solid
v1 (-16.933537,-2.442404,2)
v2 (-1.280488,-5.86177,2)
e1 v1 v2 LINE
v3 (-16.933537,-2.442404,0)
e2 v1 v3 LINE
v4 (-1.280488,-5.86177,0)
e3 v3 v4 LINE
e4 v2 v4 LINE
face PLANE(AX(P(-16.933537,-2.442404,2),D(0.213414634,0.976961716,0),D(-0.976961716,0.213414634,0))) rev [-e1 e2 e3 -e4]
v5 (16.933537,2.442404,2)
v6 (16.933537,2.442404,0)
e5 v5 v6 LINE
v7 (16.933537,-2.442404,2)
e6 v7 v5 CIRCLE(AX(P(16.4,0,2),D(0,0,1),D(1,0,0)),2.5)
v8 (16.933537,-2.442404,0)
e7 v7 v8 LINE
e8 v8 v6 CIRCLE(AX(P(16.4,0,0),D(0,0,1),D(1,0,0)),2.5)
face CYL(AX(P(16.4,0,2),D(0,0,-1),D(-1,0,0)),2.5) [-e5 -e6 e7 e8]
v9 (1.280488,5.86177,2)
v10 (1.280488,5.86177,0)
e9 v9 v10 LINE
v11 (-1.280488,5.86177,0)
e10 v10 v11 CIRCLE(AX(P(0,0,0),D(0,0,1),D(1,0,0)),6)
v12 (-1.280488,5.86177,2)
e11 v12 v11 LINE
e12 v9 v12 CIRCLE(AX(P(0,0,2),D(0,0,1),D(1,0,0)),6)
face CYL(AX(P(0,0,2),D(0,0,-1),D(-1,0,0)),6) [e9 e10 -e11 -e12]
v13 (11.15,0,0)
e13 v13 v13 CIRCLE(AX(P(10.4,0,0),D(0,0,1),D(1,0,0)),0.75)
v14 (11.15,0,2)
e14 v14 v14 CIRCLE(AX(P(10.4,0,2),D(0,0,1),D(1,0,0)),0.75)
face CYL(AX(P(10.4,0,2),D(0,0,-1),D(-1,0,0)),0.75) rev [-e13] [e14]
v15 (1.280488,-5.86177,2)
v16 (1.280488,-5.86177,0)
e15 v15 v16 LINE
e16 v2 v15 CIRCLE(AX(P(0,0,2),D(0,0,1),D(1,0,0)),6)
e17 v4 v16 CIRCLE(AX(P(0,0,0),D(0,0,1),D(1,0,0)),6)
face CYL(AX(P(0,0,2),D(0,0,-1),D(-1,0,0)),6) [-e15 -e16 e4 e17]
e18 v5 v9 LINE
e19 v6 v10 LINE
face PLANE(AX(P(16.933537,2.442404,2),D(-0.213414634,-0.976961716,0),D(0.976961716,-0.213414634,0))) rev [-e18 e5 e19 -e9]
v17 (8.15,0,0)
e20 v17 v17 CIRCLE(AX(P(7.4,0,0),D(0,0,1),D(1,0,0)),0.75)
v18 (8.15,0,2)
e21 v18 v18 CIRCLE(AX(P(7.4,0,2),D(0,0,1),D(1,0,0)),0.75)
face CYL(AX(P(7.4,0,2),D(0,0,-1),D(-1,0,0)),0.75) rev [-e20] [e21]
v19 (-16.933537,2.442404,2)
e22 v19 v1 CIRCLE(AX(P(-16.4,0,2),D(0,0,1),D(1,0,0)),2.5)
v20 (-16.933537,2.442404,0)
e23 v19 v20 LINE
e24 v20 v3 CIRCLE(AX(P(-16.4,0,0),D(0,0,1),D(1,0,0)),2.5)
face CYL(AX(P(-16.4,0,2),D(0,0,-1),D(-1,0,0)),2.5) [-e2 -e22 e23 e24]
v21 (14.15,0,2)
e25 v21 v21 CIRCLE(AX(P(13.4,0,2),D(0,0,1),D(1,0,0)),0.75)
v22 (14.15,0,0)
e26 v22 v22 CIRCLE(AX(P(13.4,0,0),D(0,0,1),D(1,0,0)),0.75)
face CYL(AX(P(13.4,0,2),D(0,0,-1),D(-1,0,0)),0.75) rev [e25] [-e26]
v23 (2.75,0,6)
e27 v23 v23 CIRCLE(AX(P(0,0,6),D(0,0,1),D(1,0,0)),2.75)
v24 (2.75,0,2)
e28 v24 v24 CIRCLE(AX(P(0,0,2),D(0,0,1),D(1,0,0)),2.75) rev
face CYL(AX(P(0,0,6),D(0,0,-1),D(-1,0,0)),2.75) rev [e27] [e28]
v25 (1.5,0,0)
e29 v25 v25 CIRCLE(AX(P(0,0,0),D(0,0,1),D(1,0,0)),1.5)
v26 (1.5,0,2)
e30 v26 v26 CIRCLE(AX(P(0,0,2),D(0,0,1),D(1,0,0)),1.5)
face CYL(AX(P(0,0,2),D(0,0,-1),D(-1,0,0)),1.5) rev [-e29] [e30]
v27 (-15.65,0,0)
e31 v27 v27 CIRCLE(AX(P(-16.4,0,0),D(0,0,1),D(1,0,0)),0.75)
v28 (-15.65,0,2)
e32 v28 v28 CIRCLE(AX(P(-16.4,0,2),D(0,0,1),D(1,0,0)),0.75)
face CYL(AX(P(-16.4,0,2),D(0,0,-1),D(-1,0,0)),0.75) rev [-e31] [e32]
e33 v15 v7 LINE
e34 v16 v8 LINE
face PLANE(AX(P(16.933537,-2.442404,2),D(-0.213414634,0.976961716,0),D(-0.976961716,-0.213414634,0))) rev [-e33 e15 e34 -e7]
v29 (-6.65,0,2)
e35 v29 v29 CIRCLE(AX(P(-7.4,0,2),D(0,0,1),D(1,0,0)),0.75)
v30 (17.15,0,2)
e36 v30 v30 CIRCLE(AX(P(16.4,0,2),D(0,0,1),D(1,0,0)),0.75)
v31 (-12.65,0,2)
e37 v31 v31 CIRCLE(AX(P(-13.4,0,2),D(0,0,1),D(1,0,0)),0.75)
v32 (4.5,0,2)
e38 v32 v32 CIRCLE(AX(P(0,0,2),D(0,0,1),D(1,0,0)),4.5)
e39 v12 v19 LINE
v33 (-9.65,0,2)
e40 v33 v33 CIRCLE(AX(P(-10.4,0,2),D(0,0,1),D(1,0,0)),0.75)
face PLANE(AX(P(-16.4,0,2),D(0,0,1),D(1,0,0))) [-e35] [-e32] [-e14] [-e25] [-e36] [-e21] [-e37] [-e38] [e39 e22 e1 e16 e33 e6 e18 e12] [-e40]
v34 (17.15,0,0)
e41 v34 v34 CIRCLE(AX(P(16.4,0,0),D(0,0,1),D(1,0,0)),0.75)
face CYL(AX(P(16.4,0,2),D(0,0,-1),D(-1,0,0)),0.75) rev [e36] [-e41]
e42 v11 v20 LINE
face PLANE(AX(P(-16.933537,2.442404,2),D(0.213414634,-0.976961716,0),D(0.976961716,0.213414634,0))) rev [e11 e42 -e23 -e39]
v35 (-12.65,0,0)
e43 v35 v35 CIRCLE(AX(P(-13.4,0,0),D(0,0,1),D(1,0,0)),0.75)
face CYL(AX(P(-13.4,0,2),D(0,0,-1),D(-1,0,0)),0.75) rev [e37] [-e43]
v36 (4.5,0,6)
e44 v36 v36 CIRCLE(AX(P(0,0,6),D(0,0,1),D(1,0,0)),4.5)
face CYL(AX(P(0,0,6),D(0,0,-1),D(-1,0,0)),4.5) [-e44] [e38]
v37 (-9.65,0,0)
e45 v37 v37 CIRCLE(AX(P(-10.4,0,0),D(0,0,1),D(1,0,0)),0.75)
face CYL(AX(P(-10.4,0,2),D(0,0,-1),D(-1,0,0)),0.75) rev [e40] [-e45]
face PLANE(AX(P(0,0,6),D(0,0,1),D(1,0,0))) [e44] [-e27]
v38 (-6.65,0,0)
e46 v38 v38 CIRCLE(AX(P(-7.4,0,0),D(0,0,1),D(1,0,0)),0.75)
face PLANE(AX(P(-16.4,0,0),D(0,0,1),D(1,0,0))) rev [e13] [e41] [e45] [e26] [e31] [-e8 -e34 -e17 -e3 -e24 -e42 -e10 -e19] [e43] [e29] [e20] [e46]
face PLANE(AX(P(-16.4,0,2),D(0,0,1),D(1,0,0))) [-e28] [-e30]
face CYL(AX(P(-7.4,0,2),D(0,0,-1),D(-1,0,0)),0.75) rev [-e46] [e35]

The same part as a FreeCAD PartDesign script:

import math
import FreeCAD as App
import Part
import Sketcher
Q = App.Units.Quantity

doc = App.newDocument("Part")
body = doc.addObject("PartDesign::Body", "Body")

# Sketch on XY plane
sketch1 = body.newObject("Sketcher::SketchObject", "Sketch")
sketch1.AttachmentSupport = (doc.getObject("XY_Plane"), [""])
sketch1.MapMode = "FlatFace"
sketch1.addGeometry([
    Part.LineSegment(App.Vector(-1.3, 5.9, 0), App.Vector(-16.9, 2.4, 0)),  # 0
    Part.ArcOfCircle(Part.Circle(App.Vector(-16.4, 0, 0), App.Vector(0, 0, 1), 2.5), math.radians(102), math.radians(258)),  # 1
    Part.LineSegment(App.Vector(-16.9, -2.4, 0), App.Vector(-1.3, -5.9, 0)),  # 2
    Part.ArcOfCircle(Part.Circle(App.Vector(0, 0, 0), App.Vector(0, 0, 1), 6), math.radians(-102), math.radians(-78)),  # 3
    Part.LineSegment(App.Vector(1.3, -5.9, 0), App.Vector(16.9, -2.4, 0)),  # 4
    Part.ArcOfCircle(Part.Circle(App.Vector(16.4, 0, 0), App.Vector(0, 0, 1), 2.5), math.radians(-78), math.radians(78)),  # 5
    Part.LineSegment(App.Vector(16.9, 2.4, 0), App.Vector(1.3, 5.9, 0)),  # 6
    Part.ArcOfCircle(Part.Circle(App.Vector(0, 0, 0), App.Vector(0, 0, 1), 6), math.radians(78), math.radians(102)),  # 7
    Part.Circle(App.Vector(16.4, 0, 0), App.Vector(0, 0, 1), 0.8),  # 8
    Part.Circle(App.Vector(13.4, 0, 0), App.Vector(0, 0, 1), 0.8),  # 9
    Part.Circle(App.Vector(10.4, 0, 0), App.Vector(0, 0, 1), 0.8),  # 10
    Part.Circle(App.Vector(7.4, 0, 0), App.Vector(0, 0, 1), 0.8),  # 11
    Part.Circle(App.Vector(0, 0, 0), App.Vector(0, 0, 1), 1.5),  # 12
    Part.Circle(App.Vector(-7.4, 0, 0), App.Vector(0, 0, 1), 0.8),  # 13
    Part.Circle(App.Vector(-10.4, 0, 0), App.Vector(0, 0, 1), 0.8),  # 14
    Part.Circle(App.Vector(-13.4, 0, 0), App.Vector(0, 0, 1), 0.8),  # 15
    Part.Circle(App.Vector(-16.4, 0, 0), App.Vector(0, 0, 1), 0.8),  # 16
], False)
sketch1.addConstraint([
    Sketcher.Constraint("Tangent", 0, 2, 1, 1),
    Sketcher.Constraint("Tangent", 1, 2, 2, 1),
    Sketcher.Constraint("Tangent", 2, 2, 3, 1),
    Sketcher.Constraint("Tangent", 3, 2, 4, 1),
    Sketcher.Constraint("Tangent", 4, 2, 5, 1),
    Sketcher.Constraint("Tangent", 5, 2, 6, 1),
    Sketcher.Constraint("Tangent", 6, 2, 7, 1),
    Sketcher.Constraint("Tangent", 7, 2, 0, 1),
    Sketcher.Constraint("Coincident", 3, 3, -1, 1),
    Sketcher.Constraint("Coincident", 7, 3, -1, 1),
    Sketcher.Constraint("Coincident", 12, 3, -1, 1),
    Sketcher.Constraint("Coincident", 8, 3, 5, 3),
    Sketcher.Constraint("Coincident", 16, 3, 1, 3),
    Sketcher.Constraint("Equal", 1, 5),
    Sketcher.Constraint("Equal", 3, 7),
    Sketcher.Constraint("Equal", 8, 9),
    Sketcher.Constraint("Equal", 9, 10),
    Sketcher.Constraint("Equal", 10, 11),
    Sketcher.Constraint("Equal", 11, 13),
    Sketcher.Constraint("Equal", 13, 14),
    Sketcher.Constraint("Equal", 14, 15),
    Sketcher.Constraint("Equal", 15, 16),
    Sketcher.Constraint("Symmetric", 1, 3, 5, 3, -1, 1),
    Sketcher.Constraint("Symmetric", 11, 3, 13, 3, -1, 1),
    Sketcher.Constraint("Symmetric", 10, 3, 14, 3, -1, 1),
    Sketcher.Constraint("Symmetric", 9, 3, 15, 3, -1, 1),
    Sketcher.Constraint("PointOnObject", 1, 3, -1),
    Sketcher.Constraint("PointOnObject", 9, 3, -1),
    Sketcher.Constraint("PointOnObject", 10, 3, -1),
    Sketcher.Constraint("PointOnObject", 11, 3, -1),
    Sketcher.Constraint("Diameter", 12, Q("3 mm")),
    Sketcher.Constraint("Radius", 3, Q("6 mm")),
    Sketcher.Constraint("Diameter", 8, Q("1.5 mm")),
    Sketcher.Constraint("Radius", 1, Q("2.5 mm")),
    Sketcher.Constraint("DistanceX", 9, 3, 5, 3, Q("3 mm")),
    Sketcher.Constraint("DistanceX", 10, 3, 9, 3, Q("3 mm")),
    Sketcher.Constraint("DistanceX", 11, 3, 10, 3, Q("3 mm")),
    Sketcher.Constraint("DistanceX", 1, 3, -1, 1, Q("16.4 mm")),
])
pad1 = body.newObject("PartDesign::Pad", "Pad")
pad1.Profile = sketch1
pad1.Length = 2

# Sketch on XY plane
sketch2 = body.newObject("Sketcher::SketchObject", "Sketch001")
sketch2.AttachmentSupport = (doc.getObject("XY_Plane"), [""])
sketch2.MapMode = "FlatFace"
sketch2.AttachmentOffset = App.Placement(App.Vector(0, 0, 2), App.Rotation())
sketch2.addGeometry([
    Part.Circle(App.Vector(0, 0, 0), App.Vector(0, 0, 1), 4.5),
    Part.Circle(App.Vector(0, 0, 0), App.Vector(0, 0, 1), 2.8),
], False)
sketch2.addConstraint([
    Sketcher.Constraint("Coincident", 0, 3, -1, 1),
    Sketcher.Constraint("Coincident", 1, 3, -1, 1),
    Sketcher.Constraint("Diameter", 0, Q("9 mm")),
    Sketcher.Constraint("Diameter", 1, Q("5.5 mm")),
])
pad2 = body.newObject("PartDesign::Pad", "Pad001")
pad2.Profile = sketch2
pad2.Length = 4

doc.recompute()
